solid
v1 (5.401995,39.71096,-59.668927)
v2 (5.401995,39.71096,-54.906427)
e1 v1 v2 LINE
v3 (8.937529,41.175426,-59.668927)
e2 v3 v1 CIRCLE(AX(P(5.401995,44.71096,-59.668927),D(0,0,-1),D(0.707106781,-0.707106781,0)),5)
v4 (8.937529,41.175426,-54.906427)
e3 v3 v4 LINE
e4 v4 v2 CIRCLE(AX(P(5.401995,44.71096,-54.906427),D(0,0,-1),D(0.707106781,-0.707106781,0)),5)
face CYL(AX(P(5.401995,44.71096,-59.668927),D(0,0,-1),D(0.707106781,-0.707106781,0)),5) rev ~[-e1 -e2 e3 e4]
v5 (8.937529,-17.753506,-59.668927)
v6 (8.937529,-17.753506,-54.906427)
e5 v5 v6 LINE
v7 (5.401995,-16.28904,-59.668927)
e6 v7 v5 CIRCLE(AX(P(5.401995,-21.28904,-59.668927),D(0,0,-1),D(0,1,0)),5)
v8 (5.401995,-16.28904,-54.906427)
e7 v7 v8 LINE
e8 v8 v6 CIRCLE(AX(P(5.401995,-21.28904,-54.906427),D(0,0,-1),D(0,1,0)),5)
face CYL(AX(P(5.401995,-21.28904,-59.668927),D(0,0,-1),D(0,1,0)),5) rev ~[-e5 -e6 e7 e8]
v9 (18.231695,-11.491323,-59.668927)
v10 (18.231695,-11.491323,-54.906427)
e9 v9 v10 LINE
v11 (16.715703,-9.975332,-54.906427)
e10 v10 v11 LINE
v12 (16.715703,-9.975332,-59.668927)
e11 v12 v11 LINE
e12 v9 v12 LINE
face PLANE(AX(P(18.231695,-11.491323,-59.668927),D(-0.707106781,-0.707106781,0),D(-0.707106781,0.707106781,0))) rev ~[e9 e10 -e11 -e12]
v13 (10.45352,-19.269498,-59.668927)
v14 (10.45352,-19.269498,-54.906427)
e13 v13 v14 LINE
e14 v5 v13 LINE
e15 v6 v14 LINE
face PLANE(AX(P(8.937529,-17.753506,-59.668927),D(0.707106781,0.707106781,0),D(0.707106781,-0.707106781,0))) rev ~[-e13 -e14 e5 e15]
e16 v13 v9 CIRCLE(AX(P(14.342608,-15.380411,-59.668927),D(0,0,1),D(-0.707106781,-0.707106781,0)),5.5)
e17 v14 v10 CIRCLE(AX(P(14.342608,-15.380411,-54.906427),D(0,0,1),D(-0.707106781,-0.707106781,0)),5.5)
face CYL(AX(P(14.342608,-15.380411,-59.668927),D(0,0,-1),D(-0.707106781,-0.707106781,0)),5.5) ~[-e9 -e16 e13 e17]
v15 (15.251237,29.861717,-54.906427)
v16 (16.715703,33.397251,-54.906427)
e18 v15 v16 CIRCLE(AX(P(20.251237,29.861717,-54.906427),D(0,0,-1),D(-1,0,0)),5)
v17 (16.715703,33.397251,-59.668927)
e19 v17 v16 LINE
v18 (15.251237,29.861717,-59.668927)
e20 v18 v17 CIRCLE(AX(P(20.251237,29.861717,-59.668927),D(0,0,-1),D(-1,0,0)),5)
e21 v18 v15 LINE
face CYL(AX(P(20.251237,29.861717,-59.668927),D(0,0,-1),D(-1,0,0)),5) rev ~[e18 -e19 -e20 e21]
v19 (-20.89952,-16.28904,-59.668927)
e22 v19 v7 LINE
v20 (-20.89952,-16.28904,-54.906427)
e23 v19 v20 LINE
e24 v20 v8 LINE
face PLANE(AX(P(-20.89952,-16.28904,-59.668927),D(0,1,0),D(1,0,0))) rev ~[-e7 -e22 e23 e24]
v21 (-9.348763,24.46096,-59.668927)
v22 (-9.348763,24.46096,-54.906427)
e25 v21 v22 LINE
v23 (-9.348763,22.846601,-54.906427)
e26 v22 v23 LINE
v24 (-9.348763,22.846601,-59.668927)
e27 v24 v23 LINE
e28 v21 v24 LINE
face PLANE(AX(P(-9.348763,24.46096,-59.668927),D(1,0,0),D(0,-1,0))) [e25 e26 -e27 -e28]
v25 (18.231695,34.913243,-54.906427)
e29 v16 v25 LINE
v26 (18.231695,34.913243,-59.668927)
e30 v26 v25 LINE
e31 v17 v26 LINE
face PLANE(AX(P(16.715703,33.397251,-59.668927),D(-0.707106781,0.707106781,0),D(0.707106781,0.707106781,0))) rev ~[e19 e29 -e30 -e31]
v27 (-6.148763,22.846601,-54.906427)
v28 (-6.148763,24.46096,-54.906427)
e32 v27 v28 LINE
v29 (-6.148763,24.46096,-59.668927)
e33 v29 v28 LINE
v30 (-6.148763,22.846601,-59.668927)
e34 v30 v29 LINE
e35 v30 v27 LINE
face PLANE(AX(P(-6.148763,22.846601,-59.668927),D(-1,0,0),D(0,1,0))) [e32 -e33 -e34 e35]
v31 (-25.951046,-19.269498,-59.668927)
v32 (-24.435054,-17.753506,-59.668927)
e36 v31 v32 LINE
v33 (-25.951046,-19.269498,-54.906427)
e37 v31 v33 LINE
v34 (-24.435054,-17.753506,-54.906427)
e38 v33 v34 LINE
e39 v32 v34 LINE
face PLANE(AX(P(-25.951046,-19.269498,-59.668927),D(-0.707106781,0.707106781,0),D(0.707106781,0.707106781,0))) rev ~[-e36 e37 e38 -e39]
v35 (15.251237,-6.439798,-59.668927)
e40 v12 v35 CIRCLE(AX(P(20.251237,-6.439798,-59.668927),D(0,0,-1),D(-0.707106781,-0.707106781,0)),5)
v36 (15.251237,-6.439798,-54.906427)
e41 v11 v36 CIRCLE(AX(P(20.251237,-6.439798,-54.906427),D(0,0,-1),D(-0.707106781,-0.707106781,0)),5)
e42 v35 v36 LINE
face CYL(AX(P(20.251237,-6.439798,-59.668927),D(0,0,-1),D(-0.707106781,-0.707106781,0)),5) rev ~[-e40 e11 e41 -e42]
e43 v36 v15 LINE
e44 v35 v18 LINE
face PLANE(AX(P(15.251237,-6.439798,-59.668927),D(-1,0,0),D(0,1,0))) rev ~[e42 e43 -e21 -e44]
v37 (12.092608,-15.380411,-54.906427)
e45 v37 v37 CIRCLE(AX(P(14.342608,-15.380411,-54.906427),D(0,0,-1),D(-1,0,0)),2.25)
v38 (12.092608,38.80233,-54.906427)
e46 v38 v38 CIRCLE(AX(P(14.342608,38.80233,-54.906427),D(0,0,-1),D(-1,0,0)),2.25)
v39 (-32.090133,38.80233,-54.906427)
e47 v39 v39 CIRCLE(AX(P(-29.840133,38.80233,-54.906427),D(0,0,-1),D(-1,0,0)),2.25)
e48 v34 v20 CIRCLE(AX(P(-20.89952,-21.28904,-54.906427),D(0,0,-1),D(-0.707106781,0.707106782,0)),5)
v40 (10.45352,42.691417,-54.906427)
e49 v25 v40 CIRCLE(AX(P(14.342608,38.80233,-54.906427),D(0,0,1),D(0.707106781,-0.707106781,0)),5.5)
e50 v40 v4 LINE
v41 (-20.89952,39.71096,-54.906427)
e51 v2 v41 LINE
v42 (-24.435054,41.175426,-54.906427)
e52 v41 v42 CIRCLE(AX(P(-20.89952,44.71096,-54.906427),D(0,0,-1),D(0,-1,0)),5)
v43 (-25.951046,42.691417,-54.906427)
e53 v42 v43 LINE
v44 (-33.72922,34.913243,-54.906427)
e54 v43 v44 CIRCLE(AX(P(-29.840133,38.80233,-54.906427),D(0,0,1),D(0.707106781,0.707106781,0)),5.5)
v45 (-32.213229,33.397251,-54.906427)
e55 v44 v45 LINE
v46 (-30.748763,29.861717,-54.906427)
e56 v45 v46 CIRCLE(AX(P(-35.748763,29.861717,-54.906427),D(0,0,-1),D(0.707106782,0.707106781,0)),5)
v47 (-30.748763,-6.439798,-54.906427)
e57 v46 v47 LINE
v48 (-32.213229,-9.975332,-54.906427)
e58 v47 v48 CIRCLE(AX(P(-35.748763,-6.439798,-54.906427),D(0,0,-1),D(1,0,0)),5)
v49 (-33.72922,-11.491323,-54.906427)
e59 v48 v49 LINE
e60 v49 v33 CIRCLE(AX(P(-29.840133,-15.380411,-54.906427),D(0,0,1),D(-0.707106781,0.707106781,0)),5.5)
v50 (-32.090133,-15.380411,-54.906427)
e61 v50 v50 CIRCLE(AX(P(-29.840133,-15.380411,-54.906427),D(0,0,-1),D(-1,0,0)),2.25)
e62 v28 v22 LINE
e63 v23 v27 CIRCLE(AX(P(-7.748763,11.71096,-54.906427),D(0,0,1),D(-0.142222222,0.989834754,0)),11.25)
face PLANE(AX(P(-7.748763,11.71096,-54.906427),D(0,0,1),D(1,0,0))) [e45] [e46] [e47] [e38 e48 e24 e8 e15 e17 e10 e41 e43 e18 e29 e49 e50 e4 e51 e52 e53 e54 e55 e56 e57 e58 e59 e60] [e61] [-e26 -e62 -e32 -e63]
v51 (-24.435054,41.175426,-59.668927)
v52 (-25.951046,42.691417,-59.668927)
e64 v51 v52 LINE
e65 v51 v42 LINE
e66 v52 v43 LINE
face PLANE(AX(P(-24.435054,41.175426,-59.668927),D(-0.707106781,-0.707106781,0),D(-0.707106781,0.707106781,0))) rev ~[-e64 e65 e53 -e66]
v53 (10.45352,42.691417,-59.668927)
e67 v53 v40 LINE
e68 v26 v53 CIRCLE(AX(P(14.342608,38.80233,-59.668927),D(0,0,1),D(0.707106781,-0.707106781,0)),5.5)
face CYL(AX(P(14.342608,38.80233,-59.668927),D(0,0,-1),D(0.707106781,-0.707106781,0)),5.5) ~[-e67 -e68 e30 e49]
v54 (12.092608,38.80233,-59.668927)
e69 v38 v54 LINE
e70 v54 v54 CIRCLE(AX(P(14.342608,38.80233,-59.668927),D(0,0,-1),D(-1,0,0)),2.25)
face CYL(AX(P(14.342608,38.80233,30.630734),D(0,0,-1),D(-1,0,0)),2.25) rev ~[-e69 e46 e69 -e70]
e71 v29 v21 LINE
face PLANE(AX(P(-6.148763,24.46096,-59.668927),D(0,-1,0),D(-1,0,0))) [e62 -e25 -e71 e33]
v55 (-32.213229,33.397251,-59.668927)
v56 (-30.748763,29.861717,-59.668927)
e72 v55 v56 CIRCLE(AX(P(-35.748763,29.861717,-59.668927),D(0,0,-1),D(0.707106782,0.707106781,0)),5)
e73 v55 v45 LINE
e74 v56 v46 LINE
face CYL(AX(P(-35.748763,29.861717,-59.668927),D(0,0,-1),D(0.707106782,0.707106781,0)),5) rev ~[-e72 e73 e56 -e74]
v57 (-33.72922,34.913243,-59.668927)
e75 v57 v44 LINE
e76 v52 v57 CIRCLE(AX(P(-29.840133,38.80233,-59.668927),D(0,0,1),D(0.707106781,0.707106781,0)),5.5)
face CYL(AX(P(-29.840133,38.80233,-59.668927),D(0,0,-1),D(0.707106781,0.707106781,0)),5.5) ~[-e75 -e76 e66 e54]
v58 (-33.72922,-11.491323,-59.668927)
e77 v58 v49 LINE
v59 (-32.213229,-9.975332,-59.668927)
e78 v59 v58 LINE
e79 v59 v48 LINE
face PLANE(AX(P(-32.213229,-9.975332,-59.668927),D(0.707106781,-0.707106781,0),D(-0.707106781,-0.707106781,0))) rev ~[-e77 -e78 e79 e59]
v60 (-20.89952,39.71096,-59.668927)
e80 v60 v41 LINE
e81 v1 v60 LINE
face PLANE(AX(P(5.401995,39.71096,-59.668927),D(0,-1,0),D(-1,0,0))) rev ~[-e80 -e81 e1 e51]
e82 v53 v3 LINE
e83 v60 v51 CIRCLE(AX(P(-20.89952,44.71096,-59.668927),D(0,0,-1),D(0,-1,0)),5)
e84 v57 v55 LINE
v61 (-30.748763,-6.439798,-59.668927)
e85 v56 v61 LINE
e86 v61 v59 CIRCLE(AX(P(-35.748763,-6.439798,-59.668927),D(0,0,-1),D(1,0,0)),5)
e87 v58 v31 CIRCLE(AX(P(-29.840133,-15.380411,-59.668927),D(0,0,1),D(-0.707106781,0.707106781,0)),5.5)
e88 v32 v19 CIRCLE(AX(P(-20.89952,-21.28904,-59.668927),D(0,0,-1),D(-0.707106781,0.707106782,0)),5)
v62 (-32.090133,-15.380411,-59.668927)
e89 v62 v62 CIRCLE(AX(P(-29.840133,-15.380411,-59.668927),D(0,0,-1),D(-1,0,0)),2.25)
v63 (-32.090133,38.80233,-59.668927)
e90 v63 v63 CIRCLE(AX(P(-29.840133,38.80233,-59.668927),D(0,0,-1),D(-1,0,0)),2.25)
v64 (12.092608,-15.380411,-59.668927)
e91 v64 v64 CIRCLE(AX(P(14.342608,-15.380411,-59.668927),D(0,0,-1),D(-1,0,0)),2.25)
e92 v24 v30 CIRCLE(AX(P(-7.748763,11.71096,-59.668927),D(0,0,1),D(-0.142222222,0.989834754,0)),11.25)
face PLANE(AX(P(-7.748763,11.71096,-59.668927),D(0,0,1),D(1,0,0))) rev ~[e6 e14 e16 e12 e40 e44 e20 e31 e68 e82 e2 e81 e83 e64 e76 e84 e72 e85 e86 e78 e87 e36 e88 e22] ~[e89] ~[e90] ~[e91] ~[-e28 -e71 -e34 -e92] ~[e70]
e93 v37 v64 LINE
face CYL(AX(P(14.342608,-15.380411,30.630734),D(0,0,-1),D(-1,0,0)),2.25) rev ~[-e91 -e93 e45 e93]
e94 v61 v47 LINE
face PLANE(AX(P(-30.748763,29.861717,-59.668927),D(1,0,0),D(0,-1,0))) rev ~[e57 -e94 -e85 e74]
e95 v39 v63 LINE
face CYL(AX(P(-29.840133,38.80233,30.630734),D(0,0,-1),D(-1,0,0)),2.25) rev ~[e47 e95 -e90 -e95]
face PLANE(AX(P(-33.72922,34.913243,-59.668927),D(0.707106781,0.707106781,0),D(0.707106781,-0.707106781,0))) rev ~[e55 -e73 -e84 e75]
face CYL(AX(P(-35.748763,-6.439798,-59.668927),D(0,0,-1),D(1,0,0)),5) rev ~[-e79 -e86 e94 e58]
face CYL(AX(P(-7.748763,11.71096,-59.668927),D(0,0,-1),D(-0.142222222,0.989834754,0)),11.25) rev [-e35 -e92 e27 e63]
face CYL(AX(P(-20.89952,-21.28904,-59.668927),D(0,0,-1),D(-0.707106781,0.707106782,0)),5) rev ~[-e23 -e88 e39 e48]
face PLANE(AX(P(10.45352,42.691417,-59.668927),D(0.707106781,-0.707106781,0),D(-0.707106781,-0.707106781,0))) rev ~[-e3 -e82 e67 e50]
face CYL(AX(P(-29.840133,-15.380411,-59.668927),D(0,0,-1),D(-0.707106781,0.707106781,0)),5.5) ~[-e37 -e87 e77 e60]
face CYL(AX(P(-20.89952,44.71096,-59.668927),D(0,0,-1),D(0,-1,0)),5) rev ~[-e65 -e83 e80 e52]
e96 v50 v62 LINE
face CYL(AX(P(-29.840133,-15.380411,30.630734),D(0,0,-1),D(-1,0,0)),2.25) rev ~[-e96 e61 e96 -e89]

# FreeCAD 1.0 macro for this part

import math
import FreeCAD as App
import Part
import Sketcher

V = App.Vector
Q = App.Units.Quantity

doc = App.newDocument("Part")
body = doc.addObject("PartDesign::Body", "Body")

# Sketch on XY plane
sketch1 = doc.addObject("Sketcher::SketchObject", "Sketch")
body.addObject(sketch1)
sketch1.AttachmentSupport = (doc.XY_Plane, [""])
sketch1.MapMode = "FlatFace"
sketch1.AttachmentOffset = App.Placement(V(0, 0, -59.668927), App.Rotation())
sketch1.addGeometry([
    Part.LineSegment(V(5.4, 39.7, 0), V(-20.9, 39.7, 0)),  # 0
    Part.ArcOfCircle(Part.Circle(V(-20.9, 44.7, 0), V(0, 0, 1), 5), math.radians(-135), math.radians(-90)),  # 1
    Part.LineSegment(V(-24.4, 41.2, 0), V(-26, 42.7, 0)),  # 2
    Part.ArcOfCircle(Part.Circle(V(-29.8, 38.8, 0), V(0, 0, 1), 5.5), math.radians(45), math.radians(225)),  # 3
    Part.LineSegment(V(-33.7, 34.9, 0), V(-32.2, 33.4, 0)),  # 4
    Part.ArcOfCircle(Part.Circle(V(-35.7, 29.9, 0), V(0, 0, 1), 5), math.radians(0), math.radians(45)),  # 5
    Part.LineSegment(V(-30.7, 29.9, 0), V(-30.7, -6.4, 0)),  # 6
    Part.ArcOfCircle(Part.Circle(V(-35.7, -6.4, 0), V(0, 0, 1), 5), math.radians(-45), math.radians(0)),  # 7
    Part.LineSegment(V(-32.2, -10, 0), V(-33.7, -11.5, 0)),  # 8
    Part.ArcOfCircle(Part.Circle(V(-29.8, -15.4, 0), V(0, 0, 1), 5.5), math.radians(135), math.radians(315)),  # 9
    Part.LineSegment(V(-26, -19.3, 0), V(-24.4, -17.8, 0)),  # 10
    Part.ArcOfCircle(Part.Circle(V(-20.9, -21.3, 0), V(0, 0, 1), 5), math.radians(90), math.radians(135)),  # 11
    Part.LineSegment(V(-20.9, -16.3, 0), V(5.4, -16.3, 0)),  # 12
    Part.ArcOfCircle(Part.Circle(V(5.4, -21.3, 0), V(0, 0, 1), 5), math.radians(45), math.radians(90)),  # 13
    Part.LineSegment(V(8.9, -17.8, 0), V(10.5, -19.3, 0)),  # 14
    Part.ArcOfCircle(Part.Circle(V(14.3, -15.4, 0), V(0, 0, 1), 5.5), math.radians(-135), math.radians(45)),  # 15
    Part.LineSegment(V(18.2, -11.5, 0), V(16.7, -10, 0)),  # 16
    Part.ArcOfCircle(Part.Circle(V(20.3, -6.4, 0), V(0, 0, 1), 5), math.radians(180), math.radians(225)),  # 17
    Part.LineSegment(V(15.3, -6.4, 0), V(15.3, 29.9, 0)),  # 18
    Part.ArcOfCircle(Part.Circle(V(20.3, 29.9, 0), V(0, 0, 1), 5), math.radians(135), math.radians(180)),  # 19
    Part.LineSegment(V(16.7, 33.4, 0), V(18.2, 34.9, 0)),  # 20
    Part.ArcOfCircle(Part.Circle(V(14.3, 38.8, 0), V(0, 0, 1), 5.5), math.radians(-45), math.radians(135)),  # 21
    Part.LineSegment(V(10.5, 42.7, 0), V(8.9, 41.2, 0)),  # 22
    Part.ArcOfCircle(Part.Circle(V(5.4, 44.7, 0), V(0, 0, 1), 5), math.radians(-90), math.radians(-45)),  # 23
    Part.LineSegment(V(-6.1, 24.5, 0), V(-6.1, 22.8, 0)),  # 24
    Part.ArcOfCircle(Part.Circle(V(-7.7, 11.7, 0), V(0, 0, 1), 11.2), math.radians(98), math.radians(442)),  # 25
    Part.LineSegment(V(-9.3, 22.8, 0), V(-9.3, 24.5, 0)),  # 26
    Part.LineSegment(V(-9.3, 24.5, 0), V(-6.1, 24.5, 0)),  # 27
], False)
sketch1.addConstraint([
    Sketcher.Constraint("Tangent", 0, 2, 1, 2),
    Sketcher.Constraint("Tangent", 1, 1, 2, 1),
    Sketcher.Constraint("Tangent", 2, 2, 3, 1),
    Sketcher.Constraint("Tangent", 3, 2, 4, 1),
    Sketcher.Constraint("Tangent", 4, 2, 5, 2),
    Sketcher.Constraint("Tangent", 5, 1, 6, 1),
    Sketcher.Constraint("Tangent", 6, 2, 7, 2),
    Sketcher.Constraint("Tangent", 7, 1, 8, 1),
    Sketcher.Constraint("Tangent", 8, 2, 9, 1),
    Sketcher.Constraint("Tangent", 9, 2, 10, 1),
    Sketcher.Constraint("Tangent", 10, 2, 11, 2),
    Sketcher.Constraint("Tangent", 11, 1, 12, 1),
    Sketcher.Constraint("Tangent", 12, 2, 13, 2),
    Sketcher.Constraint("Tangent", 13, 1, 14, 1),
    Sketcher.Constraint("Tangent", 14, 2, 15, 1),
    Sketcher.Constraint("Tangent", 15, 2, 16, 1),
    Sketcher.Constraint("Tangent", 16, 2, 17, 2),
    Sketcher.Constraint("Tangent", 17, 1, 18, 1),
    Sketcher.Constraint("Tangent", 18, 2, 19, 2),
    Sketcher.Constraint("Tangent", 19, 1, 20, 1),
    Sketcher.Constraint("Tangent", 20, 2, 21, 1),
    Sketcher.Constraint("Tangent", 21, 2, 22, 1),
    Sketcher.Constraint("Tangent", 22, 2, 23, 2),
    Sketcher.Constraint("Tangent", 23, 1, 0, 1),
    Sketcher.Constraint("Coincident", 24, 2, 25, 2),
    Sketcher.Constraint("Coincident", 25, 1, 26, 1),
    Sketcher.Constraint("Coincident", 26, 2, 27, 1),
    Sketcher.Constraint("Coincident", 27, 2, 24, 1),
    Sketcher.Constraint("Horizontal", 0),
    Sketcher.Constraint("Vertical", 6),
    Sketcher.Constraint("Horizontal", 12),
    Sketcher.Constraint("Vertical", 18),
    Sketcher.Constraint("Vertical", 24),
    Sketcher.Constraint("Vertical", 26),
    Sketcher.Constraint("Horizontal", 27),
    Sketcher.Constraint("Equal", 1, 5),
    Sketcher.Constraint("Equal", 5, 7),
    Sketcher.Constraint("Equal", 3, 9),
    Sketcher.Constraint("Equal", 7, 11),
    Sketcher.Constraint("Equal", 11, 13),
    Sketcher.Constraint("Equal", 9, 15),
    Sketcher.Constraint("Equal", 13, 17),
    Sketcher.Constraint("Equal", 17, 19),
    Sketcher.Constraint("Equal", 15, 21),
    Sketcher.Constraint("Equal", 19, 23),
    Sketcher.Constraint("Parallel", 2, 4),
    Sketcher.Constraint("Perpendicular", 4, 8),
    Sketcher.Constraint("Parallel", 8, 10),
    Sketcher.Constraint("Perpendicular", 10, 14),
    Sketcher.Constraint("Parallel", 14, 16),
    Sketcher.Constraint("Perpendicular", 16, 20),
    Sketcher.Constraint("Parallel", 20, 22),
    Sketcher.Constraint("Horizontal", 9, 3, 15, 3),
    Sketcher.Constraint("Horizontal", 7, 3, 17, 3),
    Sketcher.Constraint("Horizontal", 5, 3, 19, 3),
    Sketcher.Constraint("Horizontal", 3, 3, 21, 3),
    Sketcher.Constraint("Horizontal", 10, 2, 13, 1),
    Sketcher.Constraint("Horizontal", 24, 2, 25, 1),
    Sketcher.Constraint("Vertical", 3, 3, 9, 3),
    Sketcher.Constraint("Vertical", 1, 3, 11, 3),
    Sketcher.Constraint("Equal", 2, 4),
    Sketcher.Constraint("Radius", 1, Q("5 mm")),
    Sketcher.Constraint("Radius", 3, Q("5.5 mm")),
    Sketcher.Constraint("Radius", 25, Q("11.25 mm")),
    Sketcher.Constraint("DistanceX", 27, 1, 27, 2, Q("3.2 mm")),
    Sketcher.Constraint("DistanceY", 11, 3, 1, 3, Q("66 mm")),
    Sketcher.Constraint("DistanceX", 7, 3, 17, 3, Q("56 mm")),
    Sketcher.Constraint("DistanceX", 25, 3, 17, 3, Q("28 mm")),
    Sketcher.Constraint("DistanceY", 25, 3, 0, 2, Q("28 mm")),
    Sketcher.Constraint("DistanceY", 25, 3, 26, 2, Q("12.75 mm")),
    Sketcher.Constraint("DistanceY", -1, 1, 24, 2, Q("22.846601 mm")),
    Sketcher.Constraint("DistanceY", 5, 3, 2, 2, Q("12.8297 mm")),
    Sketcher.Constraint("DistanceX", 1, 3, -1, 1, Q("20.89952 mm")),
])
pad1 = doc.addObject("PartDesign::Pad", "Pad")
body.addObject(pad1)
pad1.Profile = sketch1
pad1.Length = 4.7625

# Sketch on XY plane
sketch2 = doc.addObject("Sketcher::SketchObject", "Sketch001")
body.addObject(sketch2)
sketch2.AttachmentSupport = (doc.XY_Plane, [""])
sketch2.MapMode = "FlatFace"
sketch2.AttachmentOffset = App.Placement(V(0, 0, -54.906427), App.Rotation())
sketch2.addGeometry([
    Part.Circle(V(-29.8, 38.8, 0), V(0, 0, 1), 2.2),
    Part.Circle(V(14.3, 38.8, 0), V(0, 0, 1), 2.2),
    Part.Circle(V(14.3, -15.4, 0), V(0, 0, 1), 2.2),
    Part.Circle(V(-29.8, -15.4, 0), V(0, 0, 1), 2.2),
], False)
sketch2.addConstraint([
    Sketcher.Constraint("Equal", 0, 1),
    Sketcher.Constraint("Equal", 1, 2),
    Sketcher.Constraint("Equal", 2, 3),
    Sketcher.Constraint("Horizontal", 0, 3, 1, 3),
    Sketcher.Constraint("Horizontal", 2, 3, 3, 3),
    Sketcher.Constraint("Vertical", 1, 3, 2, 3),
    Sketcher.Constraint("Vertical", 0, 3, 3, 3),
    Sketcher.Constraint("Diameter", 0, Q("4.5 mm")),
    Sketcher.Constraint("DistanceY", -1, 1, 0, 3, Q("38.80233 mm")),
    Sketcher.Constraint("DistanceY", 2, 3, -1, 1, Q("15.380411 mm")),
    Sketcher.Constraint("DistanceX", 0, 3, 1, 3, Q("44.182741 mm")),
    Sketcher.Constraint("DistanceX", 0, 3, -1, 1, Q("29.840133 mm")),
])
doc.recompute()
hole = doc.addObject("PartDesign::Hole", "Hole")
body.addObject(hole)
hole.Profile = sketch2
hole.ThreadType = "None"
hole.Diameter = 4.5
hole.DepthType = "ThroughAll"

doc.recompute()
